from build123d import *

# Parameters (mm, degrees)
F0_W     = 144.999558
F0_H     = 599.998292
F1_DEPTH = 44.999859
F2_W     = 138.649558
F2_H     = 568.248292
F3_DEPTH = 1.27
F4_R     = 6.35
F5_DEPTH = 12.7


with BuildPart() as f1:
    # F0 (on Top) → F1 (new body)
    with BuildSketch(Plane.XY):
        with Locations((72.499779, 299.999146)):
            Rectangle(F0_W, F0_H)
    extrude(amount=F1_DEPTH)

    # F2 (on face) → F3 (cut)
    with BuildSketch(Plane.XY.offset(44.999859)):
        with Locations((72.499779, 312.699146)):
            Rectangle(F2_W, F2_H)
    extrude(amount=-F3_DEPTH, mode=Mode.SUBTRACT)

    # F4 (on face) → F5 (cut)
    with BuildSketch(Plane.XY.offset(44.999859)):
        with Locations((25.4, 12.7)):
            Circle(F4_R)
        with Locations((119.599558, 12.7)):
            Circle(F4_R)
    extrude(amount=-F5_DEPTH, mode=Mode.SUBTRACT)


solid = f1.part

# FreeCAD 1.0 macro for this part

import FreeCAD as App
import Part
import Sketcher

V = App.Vector
Q = App.Units.Quantity


def add_polygon(sketch, points):
    """Adds a closed chain of lines whose ends are joined by coincident constraints."""
    first, n = sketch.GeometryCount, len(points)
    for a, b in zip(points, points[1:] + points[:1]):
        sketch.addGeometry(Part.LineSegment(App.Vector(*a, 0), App.Vector(*b, 0)), False)
    for i in range(n):
        sketch.addConstraint(Sketcher.Constraint("Coincident", first + i, 2, first + (i + 1) % n, 1))

doc = App.newDocument("Part")
body = doc.addObject("PartDesign::Body", "Body")

# Sketch on XY plane
sketch1 = body.newObject("Sketcher::SketchObject", "Sketch")
sketch1.AttachmentSupport = (doc.getObject("XY_Plane"), [""])
sketch1.MapMode = "FlatFace"
add_polygon(sketch1, [(0, 600), (0, 0), (145, 0), (145, 600)])  # lines 0-3
sketch1.addConstraint([
    Sketcher.Constraint("Vertical", 0),
    Sketcher.Constraint("Horizontal", 1),
    Sketcher.Constraint("Vertical", 2),
    Sketcher.Constraint("Horizontal", 3),
    Sketcher.Constraint("Coincident", 0, 2, -1, 1),
    Sketcher.Constraint("DistanceX", 1, 1, 1, 2, 144.999558),
    Sketcher.Constraint("DistanceY", 0, 2, 0, 1, 599.998292),
])
pad1 = body.newObject("PartDesign::Pad", "Pad")
pad1.Profile = sketch1
pad1.Length = 44.999859

# Sketch on XY plane
sketch2 = body.newObject("Sketcher::SketchObject", "Sketch001")
sketch2.AttachmentSupport = (doc.getObject("XY_Plane"), [""])
sketch2.MapMode = "FlatFace"
sketch2.AttachmentOffset = App.Placement(V(0, 0, 44.999859), App.Rotation())
add_polygon(sketch2, [(3, 597), (3, 29), (142, 29), (142, 597)])  # lines 0-3
sketch2.addConstraint([
    Sketcher.Constraint("Vertical", 0),
    Sketcher.Constraint("Horizontal", 1),
    Sketcher.Constraint("Vertical", 2),
    Sketcher.Constraint("Horizontal", 3),
    Sketcher.Constraint("DistanceX", -1, 1, 0, 2, Q("0.125 in")),
    Sketcher.Constraint("DistanceY", -1, 1, 0, 2, Q("1.125 in")),
    Sketcher.Constraint("DistanceY", 0, 2, 0, 1, 568.248292),
    Sketcher.Constraint("DistanceX", 1, 1, 1, 2, 138.649558),
])
pocket1 = body.newObject("PartDesign::Pocket", "Pocket")
pocket1.Profile = sketch2
pocket1.Length = Q("0.05 in")

# Sketch on XY plane
sketch3 = body.newObject("Sketcher::SketchObject", "Sketch002")
sketch3.AttachmentSupport = (doc.getObject("XY_Plane"), [""])
sketch3.MapMode = "FlatFace"
sketch3.AttachmentOffset = App.Placement(V(0, 0, 44.999859), App.Rotation())
sketch3.addGeometry([
    Part.Circle(V(25, 13, 0), V(0, 0, 1), 6),
    Part.Circle(V(120, 13, 0), V(0, 0, 1), 6),
], False)
sketch3.addConstraint([
    Sketcher.Constraint("Equal", 0, 1),
    Sketcher.Constraint("Horizontal", 0, 3, 1, 3),
    Sketcher.Constraint("Diameter", 0, Q("0.5 in")),
    Sketcher.Constraint("DistanceX", -1, 1, 0, 3, Q("1 in")),
    Sketcher.Constraint("DistanceY", -1, 1, 0, 3, Q("0.5 in")),
    Sketcher.Constraint("DistanceX", -1, 1, 1, 3, 119.599558),
])
pocket2 = body.newObject("PartDesign::Pocket", "Pocket001")
pocket2.Profile = sketch3
pocket2.Length = Q("0.5 in")

doc.recompute()
